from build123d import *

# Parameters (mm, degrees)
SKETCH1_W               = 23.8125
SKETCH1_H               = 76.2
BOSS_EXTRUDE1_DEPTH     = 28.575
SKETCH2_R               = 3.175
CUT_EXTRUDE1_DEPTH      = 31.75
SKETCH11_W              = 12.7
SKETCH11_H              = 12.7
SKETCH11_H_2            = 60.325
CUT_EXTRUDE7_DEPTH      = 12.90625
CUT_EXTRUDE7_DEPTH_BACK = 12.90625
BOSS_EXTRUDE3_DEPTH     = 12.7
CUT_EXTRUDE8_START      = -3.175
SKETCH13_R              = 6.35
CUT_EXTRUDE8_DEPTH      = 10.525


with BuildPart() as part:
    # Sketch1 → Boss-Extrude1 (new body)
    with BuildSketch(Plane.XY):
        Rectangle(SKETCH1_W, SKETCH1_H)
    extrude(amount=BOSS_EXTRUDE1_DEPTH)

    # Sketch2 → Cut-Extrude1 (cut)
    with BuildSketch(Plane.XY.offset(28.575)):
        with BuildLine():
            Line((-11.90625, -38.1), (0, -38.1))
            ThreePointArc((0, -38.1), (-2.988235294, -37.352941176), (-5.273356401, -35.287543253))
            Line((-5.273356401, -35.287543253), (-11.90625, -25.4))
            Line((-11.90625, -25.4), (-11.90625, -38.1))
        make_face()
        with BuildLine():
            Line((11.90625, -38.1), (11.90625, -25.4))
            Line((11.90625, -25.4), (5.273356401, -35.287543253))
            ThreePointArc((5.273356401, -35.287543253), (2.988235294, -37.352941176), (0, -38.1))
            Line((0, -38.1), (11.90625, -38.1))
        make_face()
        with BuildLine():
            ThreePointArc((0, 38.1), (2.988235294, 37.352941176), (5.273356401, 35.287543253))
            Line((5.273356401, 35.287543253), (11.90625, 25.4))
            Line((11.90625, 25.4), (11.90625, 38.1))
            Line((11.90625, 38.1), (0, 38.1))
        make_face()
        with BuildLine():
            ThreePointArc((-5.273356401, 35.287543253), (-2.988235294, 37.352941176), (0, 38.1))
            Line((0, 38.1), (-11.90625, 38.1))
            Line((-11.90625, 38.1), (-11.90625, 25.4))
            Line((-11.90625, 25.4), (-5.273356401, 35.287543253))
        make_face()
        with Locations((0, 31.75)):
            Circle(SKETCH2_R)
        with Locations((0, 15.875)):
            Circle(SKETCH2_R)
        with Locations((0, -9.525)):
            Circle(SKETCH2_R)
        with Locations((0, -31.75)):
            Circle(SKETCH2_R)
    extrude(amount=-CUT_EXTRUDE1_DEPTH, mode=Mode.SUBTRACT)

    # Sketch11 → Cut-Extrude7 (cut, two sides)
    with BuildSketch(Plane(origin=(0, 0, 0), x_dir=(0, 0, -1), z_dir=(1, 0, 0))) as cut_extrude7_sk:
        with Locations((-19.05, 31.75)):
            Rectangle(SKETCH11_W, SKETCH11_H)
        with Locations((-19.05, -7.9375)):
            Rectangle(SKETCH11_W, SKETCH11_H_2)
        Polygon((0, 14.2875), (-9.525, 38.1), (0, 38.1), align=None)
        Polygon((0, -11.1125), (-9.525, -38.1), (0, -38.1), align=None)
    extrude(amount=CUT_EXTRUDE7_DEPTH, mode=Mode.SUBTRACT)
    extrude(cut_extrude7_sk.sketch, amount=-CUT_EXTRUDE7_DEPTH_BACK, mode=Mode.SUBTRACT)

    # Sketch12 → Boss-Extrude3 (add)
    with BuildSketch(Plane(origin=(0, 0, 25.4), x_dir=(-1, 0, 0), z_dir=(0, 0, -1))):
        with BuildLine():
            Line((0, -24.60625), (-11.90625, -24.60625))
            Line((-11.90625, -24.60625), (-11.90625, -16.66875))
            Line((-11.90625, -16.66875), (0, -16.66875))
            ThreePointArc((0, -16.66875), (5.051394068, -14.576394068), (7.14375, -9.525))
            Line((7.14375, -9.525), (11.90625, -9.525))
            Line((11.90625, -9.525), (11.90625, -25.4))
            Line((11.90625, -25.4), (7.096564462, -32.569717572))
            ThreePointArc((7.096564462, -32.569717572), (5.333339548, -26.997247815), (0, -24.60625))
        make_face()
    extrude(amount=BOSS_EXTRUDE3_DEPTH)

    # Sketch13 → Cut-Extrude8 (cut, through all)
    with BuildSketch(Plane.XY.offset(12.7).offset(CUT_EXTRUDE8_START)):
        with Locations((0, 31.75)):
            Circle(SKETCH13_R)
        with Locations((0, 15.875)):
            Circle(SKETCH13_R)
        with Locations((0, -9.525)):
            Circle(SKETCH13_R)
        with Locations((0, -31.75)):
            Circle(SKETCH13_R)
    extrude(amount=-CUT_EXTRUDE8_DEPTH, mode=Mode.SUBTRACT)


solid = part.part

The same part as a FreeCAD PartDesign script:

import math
import FreeCAD as App
import Part
import Sketcher
Q = App.Units.Quantity


def add_polygon(sketch, points):
    """Adds a closed chain of lines whose ends are joined by coincident constraints."""
    first, n = sketch.GeometryCount, len(points)
    for a, b in zip(points, points[1:] + points[:1]):
        sketch.addGeometry(Part.LineSegment(App.Vector(*a, 0), App.Vector(*b, 0)), False)
    for i in range(n):
        sketch.addConstraint(Sketcher.Constraint("Coincident", first + i, 2, first + (i + 1) % n, 1))

doc = App.newDocument("Part")
body = doc.addObject("PartDesign::Body", "Body")

# Sketch on XY plane
sketch1 = doc.addObject("Sketcher::SketchObject", "Sketch")
body.addObject(sketch1)
sketch1.AttachmentSupport = (doc.XY_Plane, [""])
sketch1.MapMode = "FlatFace"
add_polygon(sketch1, [(-12, 38), (-12, -38), (12, -38), (12, 38)])  # lines 0-3
sketch1.addConstraint([
    Sketcher.Constraint("Vertical", 0),
    Sketcher.Constraint("Horizontal", 1),
    Sketcher.Constraint("Vertical", 2),
    Sketcher.Constraint("Horizontal", 3),
    Sketcher.Constraint("Symmetric", 0, 2, 2, 2, -1, 1),
    Sketcher.Constraint("DistanceY", 0, 2, 0, 1, Q("3 in")),
    Sketcher.Constraint("DistanceX", 1, 1, 1, 2, Q("0.9375 in")),
])
pad1 = doc.addObject("PartDesign::Pad", "Pad")
body.addObject(pad1)
pad1.Profile = sketch1
pad1.Length = Q("1.125 in")

# Sketch on XY plane
sketch2 = doc.addObject("Sketcher::SketchObject", "Sketch001")
body.addObject(sketch2)
sketch2.AttachmentSupport = (doc.XY_Plane, [""])
sketch2.MapMode = "FlatFace"
sketch2.AttachmentOffset = App.Placement(App.Vector(0, 0, 1.125 * 25.4), App.Rotation())
sketch2.addGeometry([
    Part.LineSegment(App.Vector(-11.9, -38.1, 0), App.Vector(0, -38.1, 0)),  # 0
    Part.ArcOfCircle(Part.Circle(App.Vector(0, -31.7, 0), App.Vector(0, 0, 1), 6.4), math.radians(-146), math.radians(-90)),  # 1
    Part.LineSegment(App.Vector(-5.3, -35.3, 0), App.Vector(-11.9, -25.4, 0)),  # 2
    Part.LineSegment(App.Vector(-11.9, -25.4, 0), App.Vector(-11.9, -38.1, 0)),  # 3
    Part.LineSegment(App.Vector(11.9, -38.1, 0), App.Vector(11.9, -25.4, 0)),  # 4
    Part.LineSegment(App.Vector(11.9, -25.4, 0), App.Vector(5.3, -35.3, 0)),  # 5
    Part.ArcOfCircle(Part.Circle(App.Vector(0, -31.7, 0), App.Vector(0, 0, 1), 6.4), math.radians(-90), math.radians(-34)),  # 6
    Part.LineSegment(App.Vector(0, -38.1, 0), App.Vector(11.9, -38.1, 0)),  # 7
    Part.ArcOfCircle(Part.Circle(App.Vector(0, 31.7, 0), App.Vector(0, 0, 1), 6.4), math.radians(34), math.radians(90)),  # 8
    Part.LineSegment(App.Vector(5.3, 35.3, 0), App.Vector(11.9, 25.4, 0)),  # 9
    Part.LineSegment(App.Vector(11.9, 25.4, 0), App.Vector(11.9, 38.1, 0)),  # 10
    Part.LineSegment(App.Vector(11.9, 38.1, 0), App.Vector(0, 38.1, 0)),  # 11
    Part.ArcOfCircle(Part.Circle(App.Vector(0, 31.7, 0), App.Vector(0, 0, 1), 6.4), math.radians(90), math.radians(146)),  # 12
    Part.LineSegment(App.Vector(0, 38.1, 0), App.Vector(-11.9, 38.1, 0)),  # 13
    Part.LineSegment(App.Vector(-11.9, 38.1, 0), App.Vector(-11.9, 25.4, 0)),  # 14
    Part.LineSegment(App.Vector(-11.9, 25.4, 0), App.Vector(-5.3, 35.3, 0)),  # 15
    Part.Circle(App.Vector(0, 31.8, 0), App.Vector(0, 0, 1), 3.2),  # 16
    Part.Circle(App.Vector(0, 15.9, 0), App.Vector(0, 0, 1), 3.2),  # 17
    Part.Circle(App.Vector(0, -9.5, 0), App.Vector(0, 0, 1), 3.2),  # 18
    Part.Circle(App.Vector(0, -31.8, 0), App.Vector(0, 0, 1), 3.2),  # 19
], False)
sketch2.addConstraint([
    Sketcher.Constraint("Tangent", 0, 2, 1, 2),
    Sketcher.Constraint("Tangent", 1, 1, 2, 1),
    Sketcher.Constraint("Coincident", 2, 2, 3, 1),
    Sketcher.Constraint("Coincident", 3, 2, 0, 1),
    Sketcher.Constraint("Coincident", 4, 2, 5, 1),
    Sketcher.Constraint("Tangent", 5, 2, 6, 2),
    Sketcher.Constraint("Tangent", 6, 1, 7, 1),
    Sketcher.Constraint("Coincident", 7, 2, 4, 1),
    Sketcher.Constraint("Tangent", 8, 1, 9, 1),
    Sketcher.Constraint("Coincident", 9, 2, 10, 1),
    Sketcher.Constraint("Coincident", 10, 2, 11, 1),
    Sketcher.Constraint("Tangent", 11, 2, 8, 2),
    Sketcher.Constraint("Tangent", 12, 1, 13, 1),
    Sketcher.Constraint("Coincident", 13, 2, 14, 1),
    Sketcher.Constraint("Coincident", 14, 2, 15, 1),
    Sketcher.Constraint("Tangent", 15, 2, 12, 2),
    Sketcher.Constraint("Horizontal", 0),
    Sketcher.Constraint("Vertical", 3),
    Sketcher.Constraint("Vertical", 4),
    Sketcher.Constraint("Horizontal", 7),
    Sketcher.Constraint("Vertical", 10),
    Sketcher.Constraint("Horizontal", 11),
    Sketcher.Constraint("Horizontal", 13),
    Sketcher.Constraint("Vertical", 14),
    Sketcher.Constraint("Coincident", 6, 3, 1, 3),
    Sketcher.Constraint("Coincident", 12, 3, 8, 3),
    Sketcher.Constraint("Coincident", 16, 3, 8, 3),
    Sketcher.Constraint("Coincident", 19, 3, 1, 3),
    Sketcher.Constraint("Equal", 1, 6),
    Sketcher.Constraint("Equal", 6, 8),
    Sketcher.Constraint("Equal", 8, 12),
    Sketcher.Constraint("Equal", 16, 17),
    Sketcher.Constraint("Equal", 17, 18),
    Sketcher.Constraint("Equal", 18, 19),
    Sketcher.Constraint("Symmetric", 1, 3, 8, 3, -1, 1),
    Sketcher.Constraint("Symmetric", 2, 2, 9, 2, -1, 1),
    Sketcher.Constraint("Symmetric", 4, 2, 14, 2, -1, 1),
    Sketcher.Constraint("Symmetric", 2, 2, 4, 2, -2),
    Sketcher.Constraint("PointOnObject", 1, 3, -2),
    Sketcher.Constraint("PointOnObject", 17, 3, -2),
    Sketcher.Constraint("PointOnObject", 18, 3, -2),
    Sketcher.Constraint("Diameter", 16, Q("0.25 in")),
    Sketcher.Constraint("Radius", 1, Q("0.25 in")),
    Sketcher.Constraint("DistanceY", 3, 2, 3, 1, Q("0.5 in")),
    Sketcher.Constraint("DistanceY", 2, 2, -1, 1, Q("1 in")),
    Sketcher.Constraint("DistanceY", 18, 3, 17, 3, Q("1 in")),
    Sketcher.Constraint("DistanceX", 0, 1, 0, 2, Q("0.46875 in")),
    Sketcher.Constraint("DistanceY", -1, 1, 17, 3, Q("0.625 in")),
])
pocket1 = doc.addObject("PartDesign::Pocket", "Pocket")
body.addObject(pocket1)
pocket1.Profile = sketch2
pocket1.Length = Q("1.25 in")

# Sketch on YZ plane
sketch3 = doc.addObject("Sketcher::SketchObject", "Sketch002")
body.addObject(sketch3)
sketch3.AttachmentSupport = (doc.YZ_Plane, [""])
sketch3.MapMode = "FlatFace"
add_polygon(sketch3, [(38, 25), (25, 25), (25, 13), (38, 13)])  # lines 0-3
add_polygon(sketch3, [(22, 25), (-38, 25), (-38, 13), (22, 13)])  # lines 4-7
add_polygon(sketch3, [(38, 10), (14, 0), (38, 0)])  # lines 8-10
add_polygon(sketch3, [(-11, 0), (-38, 10), (-38, 0)])  # lines 11-13
sketch3.addConstraint([
    Sketcher.Constraint("Horizontal", 0),
    Sketcher.Constraint("Vertical", 1),
    Sketcher.Constraint("Horizontal", 2),
    Sketcher.Constraint("Vertical", 3),
    Sketcher.Constraint("Horizontal", 4),
    Sketcher.Constraint("Vertical", 5),
    Sketcher.Constraint("Horizontal", 6),
    Sketcher.Constraint("Vertical", 7),
    Sketcher.Constraint("Horizontal", 9),
    Sketcher.Constraint("Vertical", 10),
    Sketcher.Constraint("Vertical", 12),
    Sketcher.Constraint("Horizontal", 13),
    Sketcher.Constraint("Symmetric", 9, 2, 12, 2, -1, 1),
    Sketcher.Constraint("Symmetric", 3, 2, 4, 2, -2),
    Sketcher.Constraint("PointOnObject", 8, 2, -1),
    Sketcher.Constraint("Horizontal", 2, 2, 5, 2),
    Sketcher.Constraint("Horizontal", 10, 2, 11, 2),
    Sketcher.Constraint("Vertical", 3, 2, 9, 2),
    Sketcher.Constraint("Equal", 2, 1),
    Sketcher.Constraint("DistanceX", 0, 2, 0, 1, Q("0.5 in")),
    Sketcher.Constraint("DistanceX", -1, 1, 0, 2, Q("1 in")),
    Sketcher.Constraint("DistanceY", -1, 1, 0, 2, Q("1 in")),
    Sketcher.Constraint("DistanceX", 13, 2, 8, 2, Q("1 in")),
    Sketcher.Constraint("DistanceX", 4, 2, 4, 1, Q("2.375 in")),
    Sketcher.Constraint("DistanceX", 9, 1, 9, 2, Q("0.9375 in")),
    Sketcher.Constraint("DistanceY", 10, 1, 10, 2, Q("0.375 in")),
])
pocket2 = doc.addObject("PartDesign::Pocket", "Pocket001")
body.addObject(pocket2)
pocket2.Profile = sketch3
pocket2.Type = "ThroughAll"
pocket2.Midplane = True

# Sketch on XY plane
sketch4 = doc.addObject("Sketcher::SketchObject", "Sketch003")
body.addObject(sketch4)
sketch4.AttachmentSupport = (doc.XY_Plane, [""])
sketch4.MapMode = "FlatFace"
sketch4.AttachmentOffset = App.Placement(App.Vector(0, 0, 1 * 25.4), App.Rotation())
sketch4.addGeometry([
    Part.LineSegment(App.Vector(11.9, -24.6, 0), App.Vector(0, -24.6, 0)),  # 0
    Part.ArcOfCircle(Part.Circle(App.Vector(0, -31.7, 0), App.Vector(0, 0, 1), 7.1), math.radians(90), math.radians(187)),  # 1
    Part.LineSegment(App.Vector(-7.1, -32.6, 0), App.Vector(-11.9, -25.4, 0)),  # 2
    Part.LineSegment(App.Vector(-11.9, -25.4, 0), App.Vector(-11.9, -9.5, 0)),  # 3
    Part.LineSegment(App.Vector(-11.9, -9.5, 0), App.Vector(-7.1, -9.5, 0)),  # 4
    Part.ArcOfCircle(Part.Circle(App.Vector(0, -9.5, 0), App.Vector(0, 0, 1), 7.1), math.radians(180), math.radians(270)),  # 5
    Part.LineSegment(App.Vector(0, -16.7, 0), App.Vector(11.9, -16.7, 0)),  # 6
    Part.LineSegment(App.Vector(11.9, -16.7, 0), App.Vector(11.9, -24.6, 0)),  # 7
], False)
sketch4.addConstraint([
    Sketcher.Constraint("Tangent", 0, 2, 1, 1),
    Sketcher.Constraint("Coincident", 1, 2, 2, 1),
    Sketcher.Constraint("Coincident", 2, 2, 3, 1),
    Sketcher.Constraint("Coincident", 3, 2, 4, 1),
    Sketcher.Constraint("Coincident", 4, 2, 5, 1),
    Sketcher.Constraint("Tangent", 5, 2, 6, 1),
    Sketcher.Constraint("Coincident", 6, 2, 7, 1),
    Sketcher.Constraint("Coincident", 7, 2, 0, 1),
    Sketcher.Constraint("Horizontal", 0),
    Sketcher.Constraint("Vertical", 3),
    Sketcher.Constraint("Horizontal", 4),
    Sketcher.Constraint("Horizontal", 6),
    Sketcher.Constraint("Vertical", 7),
    Sketcher.Constraint("Equal", 1, 5),
    Sketcher.Constraint("PointOnObject", 1, 3, -2),
    Sketcher.Constraint("PointOnObject", 5, 3, -2),
    Sketcher.Constraint("Horizontal", 5, 3, 3, 2),
    Sketcher.Constraint("DistanceY", 2, 2, -1, 1, Q("1 in")),
    Sketcher.Constraint("Radius", 1, Q("0.28125 in")),
    Sketcher.Constraint("DistanceX", 0, 2, 0, 1, Q("0.46875 in")),
    Sketcher.Constraint("DistanceX", 4, 1, 4, 2, Q("0.1875 in")),
    Sketcher.Constraint("DistanceY", 3, 1, 3, 2, Q("0.625 in")),
    Sketcher.Constraint("DistanceY", 7, 2, 7, 1, Q("0.3125 in")),
    Sketcher.Constraint("Distance", 2, Q("8.633535 mm")),
])
pad2 = doc.addObject("PartDesign::Pad", "Pad001")
body.addObject(pad2)
pad2.Profile = sketch4
pad2.Length = Q("0.5 in")
pad2.Reversed = True

# Sketch on XY plane
sketch5 = doc.addObject("Sketcher::SketchObject", "Sketch004")
body.addObject(sketch5)
sketch5.AttachmentSupport = (doc.XY_Plane, [""])
sketch5.MapMode = "FlatFace"
sketch5.AttachmentOffset = App.Placement(App.Vector(0, 0, 0.375 * 25.4), App.Rotation())
sketch5.addGeometry([
    Part.Circle(App.Vector(0, 32, 0), App.Vector(0, 0, 1), 6),
    Part.Circle(App.Vector(0, 16, 0), App.Vector(0, 0, 1), 6),
    Part.Circle(App.Vector(0, -10, 0), App.Vector(0, 0, 1), 6),
    Part.Circle(App.Vector(0, -32, 0), App.Vector(0, 0, 1), 6),
], False)
sketch5.addConstraint([
    Sketcher.Constraint("Equal", 0, 1),
    Sketcher.Constraint("Equal", 1, 2),
    Sketcher.Constraint("Equal", 2, 3),
    Sketcher.Constraint("Symmetric", 0, 3, 3, 3, -1, 1),
    Sketcher.Constraint("PointOnObject", 0, 3, -2),
    Sketcher.Constraint("PointOnObject", 1, 3, -2),
    Sketcher.Constraint("PointOnObject", 2, 3, -2),
    Sketcher.Constraint("Diameter", 0, Q("0.5 in")),
    Sketcher.Constraint("DistanceY", 2, 3, 1, 3, Q("1 in")),
    Sketcher.Constraint("DistanceY", 3, 3, 0, 3, Q("2.5 in")),
    Sketcher.Constraint("DistanceY", -1, 1, 1, 3, Q("0.625 in")),
])
pocket3 = doc.addObject("PartDesign::Pocket", "Pocket002")
body.addObject(pocket3)
pocket3.Profile = sketch5
pocket3.Type = "ThroughAll"

doc.recompute()
